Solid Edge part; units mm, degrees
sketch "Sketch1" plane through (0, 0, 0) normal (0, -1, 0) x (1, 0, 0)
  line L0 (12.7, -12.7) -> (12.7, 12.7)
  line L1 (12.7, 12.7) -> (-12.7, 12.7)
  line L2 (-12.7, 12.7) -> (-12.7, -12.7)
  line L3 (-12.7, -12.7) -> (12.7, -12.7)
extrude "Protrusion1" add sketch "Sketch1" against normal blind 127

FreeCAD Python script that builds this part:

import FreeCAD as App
import Part
import Sketcher
Q = App.Units.Quantity


def add_polygon(sketch, points):
    """Adds a closed chain of lines whose ends are joined by coincident constraints."""
    first, n = sketch.GeometryCount, len(points)
    for a, b in zip(points, points[1:] + points[:1]):
        sketch.addGeometry(Part.LineSegment(App.Vector(*a, 0), App.Vector(*b, 0)), False)
    for i in range(n):
        sketch.addConstraint(Sketcher.Constraint("Coincident", first + i, 2, first + (i + 1) % n, 1))

doc = App.newDocument("Part")
body = doc.addObject("PartDesign::Body", "Body")

# Sketch on XZ plane
sketch1 = doc.addObject("Sketcher::SketchObject", "Sketch")
body.addObject(sketch1)
sketch1.AttachmentSupport = (doc.XZ_Plane, [""])
sketch1.MapMode = "FlatFace"
add_polygon(sketch1, [(-13, -13), (13, -13), (13, 13), (-13, 13)])  # lines 0-3
sketch1.addConstraint(Sketcher.Constraint("Horizontal", 0))
sketch1.addConstraint(Sketcher.Constraint("Vertical", 1))
sketch1.addConstraint(Sketcher.Constraint("Horizontal", 2))
sketch1.addConstraint(Sketcher.Constraint("Vertical", 3))
sketch1.addConstraint(Sketcher.Constraint("Symmetric", 0, 2, 2, 2, -1, 1))
sketch1.addConstraint(Sketcher.Constraint("Equal", 2, 1))
sketch1.addConstraint(Sketcher.Constraint("DistanceX", 0, 1, 0, 2, Q("1 in")))
pad1 = doc.addObject("PartDesign::Pad", "Pad")
body.addObject(pad1)
pad1.Profile = sketch1
pad1.Length = Q("5 in")
pad1.Reversed = True

doc.recompute()
